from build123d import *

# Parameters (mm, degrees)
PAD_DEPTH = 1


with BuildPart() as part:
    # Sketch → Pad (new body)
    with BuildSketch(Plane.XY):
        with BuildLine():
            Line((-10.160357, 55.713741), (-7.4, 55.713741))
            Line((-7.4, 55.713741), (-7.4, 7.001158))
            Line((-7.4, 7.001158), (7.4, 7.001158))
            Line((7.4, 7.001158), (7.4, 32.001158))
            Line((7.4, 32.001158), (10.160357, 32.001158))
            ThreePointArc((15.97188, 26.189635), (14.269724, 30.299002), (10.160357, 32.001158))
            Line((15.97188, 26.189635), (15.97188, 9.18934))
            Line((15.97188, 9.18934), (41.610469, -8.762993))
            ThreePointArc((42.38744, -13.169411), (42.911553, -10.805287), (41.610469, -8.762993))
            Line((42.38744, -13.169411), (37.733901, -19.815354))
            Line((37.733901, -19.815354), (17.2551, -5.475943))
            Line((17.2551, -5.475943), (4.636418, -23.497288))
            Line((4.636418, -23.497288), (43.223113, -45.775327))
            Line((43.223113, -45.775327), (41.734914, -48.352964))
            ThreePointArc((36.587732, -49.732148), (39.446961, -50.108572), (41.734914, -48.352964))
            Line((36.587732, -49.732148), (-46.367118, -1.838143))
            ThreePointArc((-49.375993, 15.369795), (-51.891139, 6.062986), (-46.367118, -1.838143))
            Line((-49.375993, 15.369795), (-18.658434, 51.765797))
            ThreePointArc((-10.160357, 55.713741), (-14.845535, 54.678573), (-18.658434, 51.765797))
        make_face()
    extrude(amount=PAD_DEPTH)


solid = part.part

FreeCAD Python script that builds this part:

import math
import FreeCAD as App
import Part
import Sketcher

V = App.Vector
Q = App.Units.Quantity

doc = App.newDocument("Part")
body = doc.addObject("PartDesign::Body", "Body")

# Sketch on XY plane
sketch1 = doc.addObject("Sketcher::SketchObject", "Sketch")
body.addObject(sketch1)
sketch1.AttachmentSupport = (doc.XY_Plane, [""])
sketch1.MapMode = "FlatFace"
sketch1.addGeometry([
    Part.LineSegment(V(-7.4, 55.7, 0), V(-10.2, 55.7, 0)),  # 0
    Part.ArcOfCircle(Part.Circle(V(-10.2, 44.6, 0), V(0, 0, 1), 11.1), math.radians(90), math.radians(140)),  # 1
    Part.LineSegment(V(-18.7, 51.8, 0), V(-49.4, 15.4, 0)),  # 2
    Part.ArcOfCircle(Part.Circle(V(-40.7, 8, 0), V(0, 0, 1), 11.4), math.radians(140), math.radians(240)),  # 3
    Part.LineSegment(V(-46.4, -1.8, 0), V(36.6, -49.7, 0)),  # 4
    Part.ArcOfCircle(Part.Circle(V(38.5, -46.5, 0), V(0, 0, 1), 3.8), math.radians(-120), math.radians(-30)),  # 5
    Part.LineSegment(V(41.7, -48.4, 0), V(43.2, -45.8, 0)),  # 6
    Part.LineSegment(V(43.2, -45.8, 0), V(4.6, -23.5, 0)),  # 7
    Part.LineSegment(V(4.6, -23.5, 0), V(17.3, -5.5, 0)),  # 8
    Part.LineSegment(V(17.3, -5.5, 0), V(37.7, -19.8, 0)),  # 9
    Part.LineSegment(V(37.7, -19.8, 0), V(42.4, -13.2, 0)),  # 10
    Part.ArcOfCircle(Part.Circle(V(39.8, -11.4, 0), V(0, 0, 1), 3.2), math.radians(-35), math.radians(55)),  # 11
    Part.LineSegment(V(41.6, -8.8, 0), V(16, 9.2, 0)),  # 12
    Part.LineSegment(V(16, 9.2, 0), V(16, 26.2, 0)),  # 13
    Part.ArcOfCircle(Part.Circle(V(10.2, 26.2, 0), V(0, 0, 1), 5.8), math.radians(0), math.radians(90)),  # 14
    Part.LineSegment(V(10.2, 32, 0), V(7.4, 32, 0)),  # 15
    Part.LineSegment(V(7.4, 32, 0), V(7.4, 7, 0)),  # 16
    Part.LineSegment(V(7.4, 7, 0), V(-7.4, 7, 0)),  # 17
    Part.LineSegment(V(-7.4, 7, 0), V(-7.4, 55.7, 0)),  # 18
], False)
sketch1.addConstraint([
    Sketcher.Constraint("Tangent", 0, 2, 1, 1),
    Sketcher.Constraint("Tangent", 1, 2, 2, 1),
    Sketcher.Constraint("Tangent", 2, 2, 3, 1),
    Sketcher.Constraint("Tangent", 3, 2, 4, 1),
    Sketcher.Constraint("Tangent", 4, 2, 5, 1),
    Sketcher.Constraint("Tangent", 5, 2, 6, 1),
    Sketcher.Constraint("Coincident", 6, 2, 7, 1),
    Sketcher.Constraint("Coincident", 7, 2, 8, 1),
    Sketcher.Constraint("Coincident", 8, 2, 9, 1),
    Sketcher.Constraint("Coincident", 9, 2, 10, 1),
    Sketcher.Constraint("Tangent", 10, 2, 11, 1),
    Sketcher.Constraint("Tangent", 11, 2, 12, 1),
    Sketcher.Constraint("Coincident", 12, 2, 13, 1),
    Sketcher.Constraint("Tangent", 13, 2, 14, 1),
    Sketcher.Constraint("Tangent", 14, 2, 15, 1),
    Sketcher.Constraint("Coincident", 15, 2, 16, 1),
    Sketcher.Constraint("Coincident", 16, 2, 17, 1),
    Sketcher.Constraint("Coincident", 17, 2, 18, 1),
    Sketcher.Constraint("Coincident", 18, 2, 0, 1),
    Sketcher.Constraint("Horizontal", 0),
    Sketcher.Constraint("Vertical", 13),
    Sketcher.Constraint("Horizontal", 15),
    Sketcher.Constraint("Vertical", 16),
    Sketcher.Constraint("Horizontal", 17),
    Sketcher.Constraint("Vertical", 18),
    Sketcher.Constraint("Perpendicular", 4, 6),
    Sketcher.Constraint("Perpendicular", 6, 7),
    Sketcher.Constraint("Perpendicular", 8, 9),
    Sketcher.Constraint("Perpendicular", 9, 10),
    Sketcher.Constraint("Perpendicular", 10, 12),
    Sketcher.Constraint("Equal", 0, 15),
    Sketcher.Constraint("DistanceY", 16, 2, 16, 1, Q("25 mm")),
    Sketcher.Constraint("Angle", 4, Q("-30 deg")),
    Sketcher.Constraint("Angle", 8, Q("54.999999 deg")),
    Sketcher.Constraint("Distance", 8, Q("22 mm")),
    Sketcher.Constraint("Distance", 9, Q("25 mm")),
    Sketcher.Constraint("DistanceX", 17, 2, 17, 1, Q("14.8 mm")),
    Sketcher.Constraint("Radius", 5, Q("3.768 mm")),
    Sketcher.Constraint("DistanceX", -1, 1, 15, 2, Q("7.4 mm")),
    Sketcher.Constraint("Radius", 1, Q("11.12017 mm")),
    Sketcher.Constraint("Radius", 3, Q("11.388445 mm")),
    Sketcher.Constraint("Radius", 11, Q("3.163876 mm")),
    Sketcher.Constraint("Radius", 14, Q("5.811524 mm")),
    Sketcher.Constraint("DistanceY", 2, 2, 1, 2, Q("36.396002 mm")),
    Sketcher.Constraint("Distance", 6, Q("2.976399 mm")),
    Sketcher.Constraint("Distance", 10, Q("8.113198 mm")),
    Sketcher.Constraint("DistanceX", -1, 1, 8, 2, Q("17.2551 mm")),
    Sketcher.Constraint("DistanceX", 0, 2, 11, 3, Q("49.9561 mm")),
    Sketcher.Constraint("DistanceY", 8, 2, 16, 2, Q("12.477101 mm")),
    Sketcher.Constraint("Distance", 4, Q("95.78801 mm")),
    Sketcher.Constraint("DistanceY", 18, 1, 18, 2, Q("48.712583 mm")),
    Sketcher.Constraint("DistanceY", -1, 1, 1, 3, Q("44.593571 mm")),
])
pad1 = doc.addObject("PartDesign::Pad", "Pad")
body.addObject(pad1)
pad1.Profile = sketch1
pad1.Length = 1

doc.recompute()
